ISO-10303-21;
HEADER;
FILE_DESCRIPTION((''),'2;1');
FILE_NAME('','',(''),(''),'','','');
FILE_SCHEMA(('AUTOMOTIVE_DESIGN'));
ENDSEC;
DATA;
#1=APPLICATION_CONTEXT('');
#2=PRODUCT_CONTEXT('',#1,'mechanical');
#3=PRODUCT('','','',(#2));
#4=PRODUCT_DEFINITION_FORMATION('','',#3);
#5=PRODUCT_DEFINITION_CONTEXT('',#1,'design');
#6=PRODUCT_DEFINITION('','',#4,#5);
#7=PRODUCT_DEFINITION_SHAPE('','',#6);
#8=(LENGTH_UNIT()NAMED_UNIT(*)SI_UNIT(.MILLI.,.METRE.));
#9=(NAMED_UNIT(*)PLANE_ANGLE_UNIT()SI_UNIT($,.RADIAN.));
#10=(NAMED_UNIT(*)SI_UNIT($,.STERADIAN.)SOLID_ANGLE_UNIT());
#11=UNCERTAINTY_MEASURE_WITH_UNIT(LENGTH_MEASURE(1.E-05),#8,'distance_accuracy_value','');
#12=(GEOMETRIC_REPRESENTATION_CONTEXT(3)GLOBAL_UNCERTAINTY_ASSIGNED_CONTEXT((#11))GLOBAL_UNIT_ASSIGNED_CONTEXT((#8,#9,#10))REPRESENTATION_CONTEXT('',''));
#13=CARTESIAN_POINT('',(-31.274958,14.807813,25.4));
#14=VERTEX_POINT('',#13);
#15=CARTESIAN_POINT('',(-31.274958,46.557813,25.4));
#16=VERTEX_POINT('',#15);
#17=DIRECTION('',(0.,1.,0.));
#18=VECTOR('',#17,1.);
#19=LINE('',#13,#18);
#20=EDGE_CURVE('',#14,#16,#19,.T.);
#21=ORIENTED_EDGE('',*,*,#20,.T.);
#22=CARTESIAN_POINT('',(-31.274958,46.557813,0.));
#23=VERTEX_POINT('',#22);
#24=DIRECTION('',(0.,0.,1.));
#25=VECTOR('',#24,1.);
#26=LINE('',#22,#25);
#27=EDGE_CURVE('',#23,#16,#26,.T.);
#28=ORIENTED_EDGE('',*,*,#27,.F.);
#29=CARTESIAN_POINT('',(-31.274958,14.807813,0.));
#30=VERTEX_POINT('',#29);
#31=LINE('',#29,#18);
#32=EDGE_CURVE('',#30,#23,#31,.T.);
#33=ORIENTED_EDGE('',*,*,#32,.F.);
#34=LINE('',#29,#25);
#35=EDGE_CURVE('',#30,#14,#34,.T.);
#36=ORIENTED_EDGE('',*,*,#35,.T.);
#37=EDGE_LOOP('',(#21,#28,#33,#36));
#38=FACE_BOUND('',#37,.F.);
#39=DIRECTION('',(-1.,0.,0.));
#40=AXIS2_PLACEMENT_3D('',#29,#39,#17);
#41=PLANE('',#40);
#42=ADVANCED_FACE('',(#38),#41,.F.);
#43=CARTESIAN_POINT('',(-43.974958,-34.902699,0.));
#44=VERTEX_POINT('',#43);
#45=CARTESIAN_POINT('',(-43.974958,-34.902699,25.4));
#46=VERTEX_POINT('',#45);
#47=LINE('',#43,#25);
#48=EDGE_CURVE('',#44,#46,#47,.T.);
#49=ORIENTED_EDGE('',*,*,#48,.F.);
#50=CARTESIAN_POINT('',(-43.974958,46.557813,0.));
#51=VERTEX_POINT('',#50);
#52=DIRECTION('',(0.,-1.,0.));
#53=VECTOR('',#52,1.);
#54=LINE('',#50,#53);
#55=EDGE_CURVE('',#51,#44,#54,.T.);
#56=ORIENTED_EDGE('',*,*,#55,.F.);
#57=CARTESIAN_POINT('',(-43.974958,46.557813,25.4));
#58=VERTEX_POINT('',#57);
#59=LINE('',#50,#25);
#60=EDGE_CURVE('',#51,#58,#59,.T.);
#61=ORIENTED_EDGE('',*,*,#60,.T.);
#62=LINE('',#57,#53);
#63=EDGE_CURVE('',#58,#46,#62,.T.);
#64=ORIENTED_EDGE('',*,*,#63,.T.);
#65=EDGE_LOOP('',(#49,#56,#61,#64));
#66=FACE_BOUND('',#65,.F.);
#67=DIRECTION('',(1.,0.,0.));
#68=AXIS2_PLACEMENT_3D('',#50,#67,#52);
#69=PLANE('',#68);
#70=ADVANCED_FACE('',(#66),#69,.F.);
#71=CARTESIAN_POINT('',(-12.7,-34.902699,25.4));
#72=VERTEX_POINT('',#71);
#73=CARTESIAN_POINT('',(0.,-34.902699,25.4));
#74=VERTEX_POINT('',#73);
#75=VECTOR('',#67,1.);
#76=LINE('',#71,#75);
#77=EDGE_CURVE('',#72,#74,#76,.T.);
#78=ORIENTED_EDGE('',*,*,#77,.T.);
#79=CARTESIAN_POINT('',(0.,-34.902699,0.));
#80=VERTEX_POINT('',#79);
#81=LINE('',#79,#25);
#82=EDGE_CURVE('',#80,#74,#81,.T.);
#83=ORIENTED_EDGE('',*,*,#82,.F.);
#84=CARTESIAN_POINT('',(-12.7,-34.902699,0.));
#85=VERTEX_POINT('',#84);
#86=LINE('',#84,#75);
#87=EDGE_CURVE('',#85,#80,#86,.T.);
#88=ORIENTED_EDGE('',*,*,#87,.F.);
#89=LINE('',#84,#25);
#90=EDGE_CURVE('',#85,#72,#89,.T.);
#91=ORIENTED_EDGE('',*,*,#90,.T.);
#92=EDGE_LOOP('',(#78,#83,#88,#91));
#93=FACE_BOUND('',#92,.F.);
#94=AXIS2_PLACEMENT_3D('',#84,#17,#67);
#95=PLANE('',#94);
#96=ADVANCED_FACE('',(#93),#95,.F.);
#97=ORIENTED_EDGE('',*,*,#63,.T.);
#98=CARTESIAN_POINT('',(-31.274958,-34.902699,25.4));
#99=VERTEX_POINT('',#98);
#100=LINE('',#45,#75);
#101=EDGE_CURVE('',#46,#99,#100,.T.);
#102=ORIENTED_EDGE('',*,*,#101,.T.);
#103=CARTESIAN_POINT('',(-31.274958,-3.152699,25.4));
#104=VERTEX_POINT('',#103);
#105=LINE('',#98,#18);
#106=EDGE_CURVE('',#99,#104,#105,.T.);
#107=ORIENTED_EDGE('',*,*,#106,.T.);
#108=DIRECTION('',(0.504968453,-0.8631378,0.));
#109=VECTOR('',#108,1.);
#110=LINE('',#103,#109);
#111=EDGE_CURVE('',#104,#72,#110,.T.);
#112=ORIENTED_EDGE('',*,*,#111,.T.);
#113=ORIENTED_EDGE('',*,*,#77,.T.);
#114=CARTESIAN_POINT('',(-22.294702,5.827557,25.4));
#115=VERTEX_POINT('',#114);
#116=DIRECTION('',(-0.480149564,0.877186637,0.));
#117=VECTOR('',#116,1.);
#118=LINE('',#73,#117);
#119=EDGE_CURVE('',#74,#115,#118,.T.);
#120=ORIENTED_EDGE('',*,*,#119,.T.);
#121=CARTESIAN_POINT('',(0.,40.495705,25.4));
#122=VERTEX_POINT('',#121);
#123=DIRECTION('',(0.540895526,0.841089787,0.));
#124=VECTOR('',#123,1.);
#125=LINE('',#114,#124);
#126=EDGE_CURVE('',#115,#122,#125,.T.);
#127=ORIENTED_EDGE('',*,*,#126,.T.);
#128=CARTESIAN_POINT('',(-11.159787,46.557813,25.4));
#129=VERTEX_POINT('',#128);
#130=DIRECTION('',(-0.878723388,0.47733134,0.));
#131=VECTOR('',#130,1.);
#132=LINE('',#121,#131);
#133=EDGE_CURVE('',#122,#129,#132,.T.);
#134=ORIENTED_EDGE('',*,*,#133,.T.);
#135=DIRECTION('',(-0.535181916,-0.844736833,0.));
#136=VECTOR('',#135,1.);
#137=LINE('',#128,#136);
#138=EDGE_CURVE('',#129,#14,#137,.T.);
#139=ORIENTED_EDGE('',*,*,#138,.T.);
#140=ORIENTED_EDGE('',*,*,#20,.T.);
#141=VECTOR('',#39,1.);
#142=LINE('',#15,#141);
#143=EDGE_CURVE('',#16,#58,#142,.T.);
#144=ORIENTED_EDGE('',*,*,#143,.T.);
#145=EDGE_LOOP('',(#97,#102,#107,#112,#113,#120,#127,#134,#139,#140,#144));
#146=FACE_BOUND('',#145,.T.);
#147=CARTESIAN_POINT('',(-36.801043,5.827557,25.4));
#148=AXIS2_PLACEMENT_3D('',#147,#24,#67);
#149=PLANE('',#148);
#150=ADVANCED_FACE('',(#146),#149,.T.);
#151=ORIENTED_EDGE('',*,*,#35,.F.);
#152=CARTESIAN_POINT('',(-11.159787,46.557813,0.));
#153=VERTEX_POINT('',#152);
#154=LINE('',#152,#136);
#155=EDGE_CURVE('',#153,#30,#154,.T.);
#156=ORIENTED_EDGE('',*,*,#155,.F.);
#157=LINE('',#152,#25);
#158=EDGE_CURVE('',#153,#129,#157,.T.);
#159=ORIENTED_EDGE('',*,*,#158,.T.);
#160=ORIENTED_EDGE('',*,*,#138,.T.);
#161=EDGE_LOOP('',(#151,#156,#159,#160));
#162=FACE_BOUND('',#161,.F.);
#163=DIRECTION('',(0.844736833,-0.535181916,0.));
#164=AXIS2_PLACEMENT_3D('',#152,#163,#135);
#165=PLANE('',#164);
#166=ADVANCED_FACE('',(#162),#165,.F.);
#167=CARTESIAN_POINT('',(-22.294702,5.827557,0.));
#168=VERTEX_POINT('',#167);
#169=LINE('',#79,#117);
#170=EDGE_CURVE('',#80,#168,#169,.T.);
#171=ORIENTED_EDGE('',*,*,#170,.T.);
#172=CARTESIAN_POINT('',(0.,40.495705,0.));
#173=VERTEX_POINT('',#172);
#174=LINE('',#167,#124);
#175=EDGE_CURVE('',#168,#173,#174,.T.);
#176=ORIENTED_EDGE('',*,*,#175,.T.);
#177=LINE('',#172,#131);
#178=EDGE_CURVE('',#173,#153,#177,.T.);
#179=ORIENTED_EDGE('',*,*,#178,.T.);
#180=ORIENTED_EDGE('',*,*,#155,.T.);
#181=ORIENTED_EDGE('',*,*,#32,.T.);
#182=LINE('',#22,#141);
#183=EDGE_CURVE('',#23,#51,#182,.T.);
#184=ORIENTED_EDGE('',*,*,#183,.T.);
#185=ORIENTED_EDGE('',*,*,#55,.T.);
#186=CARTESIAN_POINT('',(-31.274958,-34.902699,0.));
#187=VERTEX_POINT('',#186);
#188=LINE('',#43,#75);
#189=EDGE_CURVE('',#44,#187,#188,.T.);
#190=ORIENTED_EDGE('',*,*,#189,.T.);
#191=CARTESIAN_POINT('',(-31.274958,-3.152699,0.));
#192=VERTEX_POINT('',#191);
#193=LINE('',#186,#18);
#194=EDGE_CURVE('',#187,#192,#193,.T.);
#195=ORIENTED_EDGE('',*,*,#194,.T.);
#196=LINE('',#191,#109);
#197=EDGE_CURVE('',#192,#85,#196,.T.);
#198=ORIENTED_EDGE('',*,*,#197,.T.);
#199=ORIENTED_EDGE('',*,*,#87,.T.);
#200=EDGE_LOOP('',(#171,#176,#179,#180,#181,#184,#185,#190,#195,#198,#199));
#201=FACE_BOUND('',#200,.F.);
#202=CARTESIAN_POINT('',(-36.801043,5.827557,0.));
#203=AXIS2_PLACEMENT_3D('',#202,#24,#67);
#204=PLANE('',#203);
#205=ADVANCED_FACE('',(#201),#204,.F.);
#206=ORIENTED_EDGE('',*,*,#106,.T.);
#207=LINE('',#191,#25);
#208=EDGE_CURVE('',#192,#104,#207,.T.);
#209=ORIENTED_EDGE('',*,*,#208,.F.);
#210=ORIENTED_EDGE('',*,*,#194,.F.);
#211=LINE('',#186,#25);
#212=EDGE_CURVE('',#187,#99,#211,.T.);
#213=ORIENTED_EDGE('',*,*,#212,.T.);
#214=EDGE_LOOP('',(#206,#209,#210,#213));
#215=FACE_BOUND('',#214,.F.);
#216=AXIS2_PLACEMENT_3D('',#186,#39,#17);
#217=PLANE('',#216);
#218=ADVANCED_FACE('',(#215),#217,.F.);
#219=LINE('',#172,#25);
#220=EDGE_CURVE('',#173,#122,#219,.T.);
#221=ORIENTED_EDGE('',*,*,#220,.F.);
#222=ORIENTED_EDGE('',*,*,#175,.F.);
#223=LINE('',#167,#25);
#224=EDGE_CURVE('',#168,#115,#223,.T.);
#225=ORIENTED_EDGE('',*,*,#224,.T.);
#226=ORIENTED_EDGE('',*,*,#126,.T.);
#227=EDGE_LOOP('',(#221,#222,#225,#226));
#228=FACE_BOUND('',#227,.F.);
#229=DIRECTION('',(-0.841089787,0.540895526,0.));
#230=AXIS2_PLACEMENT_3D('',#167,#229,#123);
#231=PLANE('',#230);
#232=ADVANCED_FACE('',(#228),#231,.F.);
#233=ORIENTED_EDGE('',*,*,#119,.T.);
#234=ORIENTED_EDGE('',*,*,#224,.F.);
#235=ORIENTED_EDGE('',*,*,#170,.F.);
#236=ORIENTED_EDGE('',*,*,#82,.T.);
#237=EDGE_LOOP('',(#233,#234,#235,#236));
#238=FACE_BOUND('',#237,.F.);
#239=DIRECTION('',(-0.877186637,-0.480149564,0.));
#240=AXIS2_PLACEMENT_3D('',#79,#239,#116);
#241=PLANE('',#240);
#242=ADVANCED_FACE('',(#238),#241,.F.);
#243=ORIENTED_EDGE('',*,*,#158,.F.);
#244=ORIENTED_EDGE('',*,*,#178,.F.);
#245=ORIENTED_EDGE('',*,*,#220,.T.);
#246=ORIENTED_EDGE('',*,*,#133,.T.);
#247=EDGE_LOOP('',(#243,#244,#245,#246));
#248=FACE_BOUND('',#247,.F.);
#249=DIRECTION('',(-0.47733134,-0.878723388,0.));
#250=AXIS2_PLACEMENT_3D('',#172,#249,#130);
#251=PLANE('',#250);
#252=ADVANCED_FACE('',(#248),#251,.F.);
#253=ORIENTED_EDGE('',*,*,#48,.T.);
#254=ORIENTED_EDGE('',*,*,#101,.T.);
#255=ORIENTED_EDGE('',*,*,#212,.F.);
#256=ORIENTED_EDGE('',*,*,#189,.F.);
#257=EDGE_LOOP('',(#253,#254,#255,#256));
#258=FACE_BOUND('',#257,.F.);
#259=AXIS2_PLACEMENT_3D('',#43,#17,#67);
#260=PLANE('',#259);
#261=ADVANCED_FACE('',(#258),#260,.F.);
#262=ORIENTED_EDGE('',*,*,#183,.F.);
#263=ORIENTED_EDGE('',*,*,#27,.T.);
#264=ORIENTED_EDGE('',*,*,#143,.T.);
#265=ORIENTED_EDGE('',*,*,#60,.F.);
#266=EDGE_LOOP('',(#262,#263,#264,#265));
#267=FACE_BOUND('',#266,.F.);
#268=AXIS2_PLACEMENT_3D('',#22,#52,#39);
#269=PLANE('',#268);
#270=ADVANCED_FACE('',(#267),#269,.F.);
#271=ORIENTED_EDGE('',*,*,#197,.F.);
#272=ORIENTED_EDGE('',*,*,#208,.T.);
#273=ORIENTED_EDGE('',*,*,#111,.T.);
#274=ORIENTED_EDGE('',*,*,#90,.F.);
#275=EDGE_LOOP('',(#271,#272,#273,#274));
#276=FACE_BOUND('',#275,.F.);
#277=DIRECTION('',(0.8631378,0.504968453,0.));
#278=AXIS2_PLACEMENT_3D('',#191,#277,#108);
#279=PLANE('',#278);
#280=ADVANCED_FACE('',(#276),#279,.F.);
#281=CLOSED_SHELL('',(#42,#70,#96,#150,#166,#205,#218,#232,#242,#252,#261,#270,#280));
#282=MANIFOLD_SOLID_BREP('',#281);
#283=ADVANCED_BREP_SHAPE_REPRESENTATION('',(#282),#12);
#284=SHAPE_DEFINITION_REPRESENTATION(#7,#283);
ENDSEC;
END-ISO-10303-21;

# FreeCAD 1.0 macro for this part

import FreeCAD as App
import Part
import Sketcher
Q = App.Units.Quantity


def add_polygon(sketch, points):
    """Adds a closed chain of lines whose ends are joined by coincident constraints."""
    first, n = sketch.GeometryCount, len(points)
    for a, b in zip(points, points[1:] + points[:1]):
        sketch.addGeometry(Part.LineSegment(App.Vector(*a, 0), App.Vector(*b, 0)), False)
    for i in range(n):
        sketch.addConstraint(Sketcher.Constraint("Coincident", first + i, 2, first + (i + 1) % n, 1))

doc = App.newDocument("Part")
body = doc.addObject("PartDesign::Body", "Body")

sketch1 = doc.addObject("Sketcher::SketchObject", "Sketch")
body.addObject(sketch1)
sketch1.AttachmentSupport = (doc.XY_Plane, [""])
sketch1.MapMode = "FlatFace"
add_polygon(sketch1, [(-31, 47), (-44, 47), (-44, -35), (-31, -35), (-31, -3), (-13, -35), (0, -35), (-22, 6), (0, 40), (-11, 47), (-31, 15)])
sketch1.addConstraint(Sketcher.Constraint("Horizontal", 0))
sketch1.addConstraint(Sketcher.Constraint("Vertical", 1))
sketch1.addConstraint(Sketcher.Constraint("Horizontal", 2))
sketch1.addConstraint(Sketcher.Constraint("Vertical", 3))
sketch1.addConstraint(Sketcher.Constraint("Horizontal", 5))
sketch1.addConstraint(Sketcher.Constraint("Vertical", 10))
sketch1.addConstraint(Sketcher.Constraint("PointOnObject", 5, 2, -2))
sketch1.addConstraint(Sketcher.Constraint("PointOnObject", 7, 2, -2))
sketch1.addConstraint(Sketcher.Constraint("Horizontal", 2, 2, 4, 2))
sketch1.addConstraint(Sketcher.Constraint("Horizontal", 0, 2, 8, 2))
sketch1.addConstraint(Sketcher.Constraint("Vertical", 3, 2, 9, 2))
sketch1.addConstraint(Sketcher.Constraint("Equal", 2, 5))
sketch1.addConstraint(Sketcher.Constraint("Equal", 3, 10))
sketch1.addConstraint(Sketcher.Constraint("DistanceX", 0, 2, 0, 1, Q("0.5 in")))
sketch1.addConstraint(Sketcher.Constraint("Distance", 8, Q("0.5 in")))
sketch1.addConstraint(Sketcher.Constraint("DistanceY", 3, 1, 3, 2, Q("1.25 in")))
sketch1.addConstraint(Sketcher.Constraint("DistanceY", 1, 2, 1, 1, Q("81.460512 mm")))
sketch1.addConstraint(Sketcher.Constraint("DistanceY", 1, 2, -1, 1, Q("34.902699 mm")))
sketch1.addConstraint(Sketcher.Constraint("Distance", 7, Q("41.21813 mm")))
sketch1.addConstraint(Sketcher.Constraint("Distance", 9, Q("37.58567 mm")))
sketch1.addConstraint(Sketcher.Constraint("DistanceX", 2, 2, -1, 1, Q("31.274958 mm")))
sketch1.addConstraint(Sketcher.Constraint("DistanceY", 6, 2, 7, 2, Q("34.668148 mm")))
pad1 = doc.addObject("PartDesign::Pad", "Pad")
body.addObject(pad1)
pad1.Profile = sketch1
pad1.Length = Q("1 in")

doc.recompute()
